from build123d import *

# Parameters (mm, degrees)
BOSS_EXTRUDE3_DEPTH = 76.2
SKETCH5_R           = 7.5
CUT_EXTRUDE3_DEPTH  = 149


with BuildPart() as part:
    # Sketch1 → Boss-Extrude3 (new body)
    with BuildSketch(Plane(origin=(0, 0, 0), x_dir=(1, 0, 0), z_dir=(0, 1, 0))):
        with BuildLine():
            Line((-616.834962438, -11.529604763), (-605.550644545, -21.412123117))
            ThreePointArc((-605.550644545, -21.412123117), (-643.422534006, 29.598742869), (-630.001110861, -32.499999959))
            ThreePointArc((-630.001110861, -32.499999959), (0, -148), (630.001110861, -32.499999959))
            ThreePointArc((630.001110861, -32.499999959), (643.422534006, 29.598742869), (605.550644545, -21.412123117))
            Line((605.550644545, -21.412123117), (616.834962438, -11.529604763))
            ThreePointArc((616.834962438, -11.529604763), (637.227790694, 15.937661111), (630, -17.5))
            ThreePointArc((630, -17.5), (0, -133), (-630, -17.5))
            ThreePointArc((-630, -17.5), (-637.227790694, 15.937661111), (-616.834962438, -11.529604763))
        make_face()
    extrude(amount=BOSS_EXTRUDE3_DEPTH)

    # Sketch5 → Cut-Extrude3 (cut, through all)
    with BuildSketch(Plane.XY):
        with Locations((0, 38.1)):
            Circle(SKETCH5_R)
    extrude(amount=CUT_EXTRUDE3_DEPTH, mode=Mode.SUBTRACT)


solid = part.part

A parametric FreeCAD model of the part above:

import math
import FreeCAD as App
import Part
import Sketcher
from FreeCAD import Vector
Q = App.Units.Quantity

doc = App.newDocument("Part")
body = doc.addObject("PartDesign::Body", "Body")

sketch1 = body.newObject("Sketcher::SketchObject", "Sketch")
sketch1.AttachmentSupport = (doc.getObject("XZ_Plane"), [""])
sketch1.MapMode = "FlatFace"
sketch1.addGeometry([
    Part.LineSegment(Vector(-616.834962, 11.529605, 0), Vector(-605.550645, 21.412123, 0)),
    Part.ArcOfCircle(Part.Circle(Vector(-630, 0, 0), Vector(0, 0, 1), 32.5), math.radians(90.001958), math.radians(401.21105)),
    Part.ArcOfCircle(Part.Circle(Vector(0, -1627.937877, 0), Vector(0, 0, 1), 1775.937877), math.radians(69.22232), math.radians(110.77768)),
    Part.ArcOfCircle(Part.Circle(Vector(630, 0, 0), Vector(0, 0, 1), 32.5), math.radians(138.78895), math.radians(449.998042)),
    Part.LineSegment(Vector(605.550645, 21.412123, 0), Vector(616.834962, 11.529605, 0)),
    Part.ArcOfCircle(Part.Circle(Vector(630, 0, 0), Vector(0, 0, 1), 17.5), math.radians(138.78895), math.radians(450)),
    Part.ArcOfCircle(Part.Circle(Vector(0, -1642.931818, 0), Vector(0, 0, 1), 1775.931818), math.radians(69.222284), math.radians(110.777716)),
    Part.ArcOfCircle(Part.Circle(Vector(-630, 0, 0), Vector(0, 0, 1), 17.5), math.radians(90), math.radians(401.21105)),
], False)
sketch1.addConstraint([
    Sketcher.Constraint("Coincident", 0, 2, 1, 2),
    Sketcher.Constraint("Coincident", 1, 1, 2, 2),
    Sketcher.Constraint("Coincident", 2, 1, 3, 2),
    Sketcher.Constraint("Coincident", 3, 1, 4, 1),
    Sketcher.Constraint("Coincident", 4, 2, 5, 1),
    Sketcher.Constraint("Coincident", 5, 2, 6, 1),
    Sketcher.Constraint("Coincident", 6, 2, 7, 1),
    Sketcher.Constraint("Coincident", 7, 2, 0, 1),
    Sketcher.Constraint("Coincident", 5, 3, 3, 3),
    Sketcher.Constraint("Coincident", 7, 3, 1, 3),
    Sketcher.Constraint("Equal", 1, 3),
    Sketcher.Constraint("Equal", 5, 7),
    Sketcher.Constraint("Symmetric", 1, 3, 3, 3, -1, 1),
    Sketcher.Constraint("Symmetric", 0, 2, 3, 1, -2),
    Sketcher.Constraint("PointOnObject", 2, 3, -2),
    Sketcher.Constraint("PointOnObject", 6, 3, -2),
    Sketcher.Constraint("Horizontal", 4, 2, 7, 2),
    Sketcher.Constraint("Vertical", 3, 3, 5, 2),
    Sketcher.Constraint("Radius", 1, Q("32.5 mm")),
    Sketcher.Constraint("Radius", 5, Q("17.5 mm")),
    Sketcher.Constraint("DistanceX", 1, 3, -1, 1, Q("630 mm")),
    Sketcher.Constraint("Radius", 6, Q("1775.931818 mm")),
    Sketcher.Constraint("DistanceY", 2, 3, 0, 2, Q("1649.35 mm")),
    Sketcher.Constraint("Radius", 2, Q("1775.937877 mm")),
    Sketcher.Constraint("DistanceX", 1, 1, -1, 1, Q("630.001111 mm")),
    Sketcher.Constraint("DistanceY", 4, 2, 3, 1, Q("9.882518 mm")),
])
pad1 = body.newObject("PartDesign::Pad", "Pad")
pad1.Profile = sketch1
pad1.Length = 76.2
pad1.Reversed = True

sketch2 = body.newObject("Sketcher::SketchObject", "Sketch001")
sketch2.AttachmentSupport = (doc.getObject("XY_Plane"), [""])
sketch2.MapMode = "FlatFace"
sketch2.addGeometry(Part.Circle(Vector(0, 38.1, 0), Vector(0, 0, 1), 7.5), False)
sketch2.addConstraint([
    Sketcher.Constraint("PointOnObject", 0, 3, -2),
    Sketcher.Constraint("Diameter", 0, Q("15 mm")),
    Sketcher.Constraint("DistanceY", -1, 1, 0, 3, Q("38.1 mm")),
])
pocket1 = body.newObject("PartDesign::Pocket", "Pocket")
pocket1.Profile = sketch2
pocket1.Type = "ThroughAll"
pocket1.Reversed = True

doc.recompute()
